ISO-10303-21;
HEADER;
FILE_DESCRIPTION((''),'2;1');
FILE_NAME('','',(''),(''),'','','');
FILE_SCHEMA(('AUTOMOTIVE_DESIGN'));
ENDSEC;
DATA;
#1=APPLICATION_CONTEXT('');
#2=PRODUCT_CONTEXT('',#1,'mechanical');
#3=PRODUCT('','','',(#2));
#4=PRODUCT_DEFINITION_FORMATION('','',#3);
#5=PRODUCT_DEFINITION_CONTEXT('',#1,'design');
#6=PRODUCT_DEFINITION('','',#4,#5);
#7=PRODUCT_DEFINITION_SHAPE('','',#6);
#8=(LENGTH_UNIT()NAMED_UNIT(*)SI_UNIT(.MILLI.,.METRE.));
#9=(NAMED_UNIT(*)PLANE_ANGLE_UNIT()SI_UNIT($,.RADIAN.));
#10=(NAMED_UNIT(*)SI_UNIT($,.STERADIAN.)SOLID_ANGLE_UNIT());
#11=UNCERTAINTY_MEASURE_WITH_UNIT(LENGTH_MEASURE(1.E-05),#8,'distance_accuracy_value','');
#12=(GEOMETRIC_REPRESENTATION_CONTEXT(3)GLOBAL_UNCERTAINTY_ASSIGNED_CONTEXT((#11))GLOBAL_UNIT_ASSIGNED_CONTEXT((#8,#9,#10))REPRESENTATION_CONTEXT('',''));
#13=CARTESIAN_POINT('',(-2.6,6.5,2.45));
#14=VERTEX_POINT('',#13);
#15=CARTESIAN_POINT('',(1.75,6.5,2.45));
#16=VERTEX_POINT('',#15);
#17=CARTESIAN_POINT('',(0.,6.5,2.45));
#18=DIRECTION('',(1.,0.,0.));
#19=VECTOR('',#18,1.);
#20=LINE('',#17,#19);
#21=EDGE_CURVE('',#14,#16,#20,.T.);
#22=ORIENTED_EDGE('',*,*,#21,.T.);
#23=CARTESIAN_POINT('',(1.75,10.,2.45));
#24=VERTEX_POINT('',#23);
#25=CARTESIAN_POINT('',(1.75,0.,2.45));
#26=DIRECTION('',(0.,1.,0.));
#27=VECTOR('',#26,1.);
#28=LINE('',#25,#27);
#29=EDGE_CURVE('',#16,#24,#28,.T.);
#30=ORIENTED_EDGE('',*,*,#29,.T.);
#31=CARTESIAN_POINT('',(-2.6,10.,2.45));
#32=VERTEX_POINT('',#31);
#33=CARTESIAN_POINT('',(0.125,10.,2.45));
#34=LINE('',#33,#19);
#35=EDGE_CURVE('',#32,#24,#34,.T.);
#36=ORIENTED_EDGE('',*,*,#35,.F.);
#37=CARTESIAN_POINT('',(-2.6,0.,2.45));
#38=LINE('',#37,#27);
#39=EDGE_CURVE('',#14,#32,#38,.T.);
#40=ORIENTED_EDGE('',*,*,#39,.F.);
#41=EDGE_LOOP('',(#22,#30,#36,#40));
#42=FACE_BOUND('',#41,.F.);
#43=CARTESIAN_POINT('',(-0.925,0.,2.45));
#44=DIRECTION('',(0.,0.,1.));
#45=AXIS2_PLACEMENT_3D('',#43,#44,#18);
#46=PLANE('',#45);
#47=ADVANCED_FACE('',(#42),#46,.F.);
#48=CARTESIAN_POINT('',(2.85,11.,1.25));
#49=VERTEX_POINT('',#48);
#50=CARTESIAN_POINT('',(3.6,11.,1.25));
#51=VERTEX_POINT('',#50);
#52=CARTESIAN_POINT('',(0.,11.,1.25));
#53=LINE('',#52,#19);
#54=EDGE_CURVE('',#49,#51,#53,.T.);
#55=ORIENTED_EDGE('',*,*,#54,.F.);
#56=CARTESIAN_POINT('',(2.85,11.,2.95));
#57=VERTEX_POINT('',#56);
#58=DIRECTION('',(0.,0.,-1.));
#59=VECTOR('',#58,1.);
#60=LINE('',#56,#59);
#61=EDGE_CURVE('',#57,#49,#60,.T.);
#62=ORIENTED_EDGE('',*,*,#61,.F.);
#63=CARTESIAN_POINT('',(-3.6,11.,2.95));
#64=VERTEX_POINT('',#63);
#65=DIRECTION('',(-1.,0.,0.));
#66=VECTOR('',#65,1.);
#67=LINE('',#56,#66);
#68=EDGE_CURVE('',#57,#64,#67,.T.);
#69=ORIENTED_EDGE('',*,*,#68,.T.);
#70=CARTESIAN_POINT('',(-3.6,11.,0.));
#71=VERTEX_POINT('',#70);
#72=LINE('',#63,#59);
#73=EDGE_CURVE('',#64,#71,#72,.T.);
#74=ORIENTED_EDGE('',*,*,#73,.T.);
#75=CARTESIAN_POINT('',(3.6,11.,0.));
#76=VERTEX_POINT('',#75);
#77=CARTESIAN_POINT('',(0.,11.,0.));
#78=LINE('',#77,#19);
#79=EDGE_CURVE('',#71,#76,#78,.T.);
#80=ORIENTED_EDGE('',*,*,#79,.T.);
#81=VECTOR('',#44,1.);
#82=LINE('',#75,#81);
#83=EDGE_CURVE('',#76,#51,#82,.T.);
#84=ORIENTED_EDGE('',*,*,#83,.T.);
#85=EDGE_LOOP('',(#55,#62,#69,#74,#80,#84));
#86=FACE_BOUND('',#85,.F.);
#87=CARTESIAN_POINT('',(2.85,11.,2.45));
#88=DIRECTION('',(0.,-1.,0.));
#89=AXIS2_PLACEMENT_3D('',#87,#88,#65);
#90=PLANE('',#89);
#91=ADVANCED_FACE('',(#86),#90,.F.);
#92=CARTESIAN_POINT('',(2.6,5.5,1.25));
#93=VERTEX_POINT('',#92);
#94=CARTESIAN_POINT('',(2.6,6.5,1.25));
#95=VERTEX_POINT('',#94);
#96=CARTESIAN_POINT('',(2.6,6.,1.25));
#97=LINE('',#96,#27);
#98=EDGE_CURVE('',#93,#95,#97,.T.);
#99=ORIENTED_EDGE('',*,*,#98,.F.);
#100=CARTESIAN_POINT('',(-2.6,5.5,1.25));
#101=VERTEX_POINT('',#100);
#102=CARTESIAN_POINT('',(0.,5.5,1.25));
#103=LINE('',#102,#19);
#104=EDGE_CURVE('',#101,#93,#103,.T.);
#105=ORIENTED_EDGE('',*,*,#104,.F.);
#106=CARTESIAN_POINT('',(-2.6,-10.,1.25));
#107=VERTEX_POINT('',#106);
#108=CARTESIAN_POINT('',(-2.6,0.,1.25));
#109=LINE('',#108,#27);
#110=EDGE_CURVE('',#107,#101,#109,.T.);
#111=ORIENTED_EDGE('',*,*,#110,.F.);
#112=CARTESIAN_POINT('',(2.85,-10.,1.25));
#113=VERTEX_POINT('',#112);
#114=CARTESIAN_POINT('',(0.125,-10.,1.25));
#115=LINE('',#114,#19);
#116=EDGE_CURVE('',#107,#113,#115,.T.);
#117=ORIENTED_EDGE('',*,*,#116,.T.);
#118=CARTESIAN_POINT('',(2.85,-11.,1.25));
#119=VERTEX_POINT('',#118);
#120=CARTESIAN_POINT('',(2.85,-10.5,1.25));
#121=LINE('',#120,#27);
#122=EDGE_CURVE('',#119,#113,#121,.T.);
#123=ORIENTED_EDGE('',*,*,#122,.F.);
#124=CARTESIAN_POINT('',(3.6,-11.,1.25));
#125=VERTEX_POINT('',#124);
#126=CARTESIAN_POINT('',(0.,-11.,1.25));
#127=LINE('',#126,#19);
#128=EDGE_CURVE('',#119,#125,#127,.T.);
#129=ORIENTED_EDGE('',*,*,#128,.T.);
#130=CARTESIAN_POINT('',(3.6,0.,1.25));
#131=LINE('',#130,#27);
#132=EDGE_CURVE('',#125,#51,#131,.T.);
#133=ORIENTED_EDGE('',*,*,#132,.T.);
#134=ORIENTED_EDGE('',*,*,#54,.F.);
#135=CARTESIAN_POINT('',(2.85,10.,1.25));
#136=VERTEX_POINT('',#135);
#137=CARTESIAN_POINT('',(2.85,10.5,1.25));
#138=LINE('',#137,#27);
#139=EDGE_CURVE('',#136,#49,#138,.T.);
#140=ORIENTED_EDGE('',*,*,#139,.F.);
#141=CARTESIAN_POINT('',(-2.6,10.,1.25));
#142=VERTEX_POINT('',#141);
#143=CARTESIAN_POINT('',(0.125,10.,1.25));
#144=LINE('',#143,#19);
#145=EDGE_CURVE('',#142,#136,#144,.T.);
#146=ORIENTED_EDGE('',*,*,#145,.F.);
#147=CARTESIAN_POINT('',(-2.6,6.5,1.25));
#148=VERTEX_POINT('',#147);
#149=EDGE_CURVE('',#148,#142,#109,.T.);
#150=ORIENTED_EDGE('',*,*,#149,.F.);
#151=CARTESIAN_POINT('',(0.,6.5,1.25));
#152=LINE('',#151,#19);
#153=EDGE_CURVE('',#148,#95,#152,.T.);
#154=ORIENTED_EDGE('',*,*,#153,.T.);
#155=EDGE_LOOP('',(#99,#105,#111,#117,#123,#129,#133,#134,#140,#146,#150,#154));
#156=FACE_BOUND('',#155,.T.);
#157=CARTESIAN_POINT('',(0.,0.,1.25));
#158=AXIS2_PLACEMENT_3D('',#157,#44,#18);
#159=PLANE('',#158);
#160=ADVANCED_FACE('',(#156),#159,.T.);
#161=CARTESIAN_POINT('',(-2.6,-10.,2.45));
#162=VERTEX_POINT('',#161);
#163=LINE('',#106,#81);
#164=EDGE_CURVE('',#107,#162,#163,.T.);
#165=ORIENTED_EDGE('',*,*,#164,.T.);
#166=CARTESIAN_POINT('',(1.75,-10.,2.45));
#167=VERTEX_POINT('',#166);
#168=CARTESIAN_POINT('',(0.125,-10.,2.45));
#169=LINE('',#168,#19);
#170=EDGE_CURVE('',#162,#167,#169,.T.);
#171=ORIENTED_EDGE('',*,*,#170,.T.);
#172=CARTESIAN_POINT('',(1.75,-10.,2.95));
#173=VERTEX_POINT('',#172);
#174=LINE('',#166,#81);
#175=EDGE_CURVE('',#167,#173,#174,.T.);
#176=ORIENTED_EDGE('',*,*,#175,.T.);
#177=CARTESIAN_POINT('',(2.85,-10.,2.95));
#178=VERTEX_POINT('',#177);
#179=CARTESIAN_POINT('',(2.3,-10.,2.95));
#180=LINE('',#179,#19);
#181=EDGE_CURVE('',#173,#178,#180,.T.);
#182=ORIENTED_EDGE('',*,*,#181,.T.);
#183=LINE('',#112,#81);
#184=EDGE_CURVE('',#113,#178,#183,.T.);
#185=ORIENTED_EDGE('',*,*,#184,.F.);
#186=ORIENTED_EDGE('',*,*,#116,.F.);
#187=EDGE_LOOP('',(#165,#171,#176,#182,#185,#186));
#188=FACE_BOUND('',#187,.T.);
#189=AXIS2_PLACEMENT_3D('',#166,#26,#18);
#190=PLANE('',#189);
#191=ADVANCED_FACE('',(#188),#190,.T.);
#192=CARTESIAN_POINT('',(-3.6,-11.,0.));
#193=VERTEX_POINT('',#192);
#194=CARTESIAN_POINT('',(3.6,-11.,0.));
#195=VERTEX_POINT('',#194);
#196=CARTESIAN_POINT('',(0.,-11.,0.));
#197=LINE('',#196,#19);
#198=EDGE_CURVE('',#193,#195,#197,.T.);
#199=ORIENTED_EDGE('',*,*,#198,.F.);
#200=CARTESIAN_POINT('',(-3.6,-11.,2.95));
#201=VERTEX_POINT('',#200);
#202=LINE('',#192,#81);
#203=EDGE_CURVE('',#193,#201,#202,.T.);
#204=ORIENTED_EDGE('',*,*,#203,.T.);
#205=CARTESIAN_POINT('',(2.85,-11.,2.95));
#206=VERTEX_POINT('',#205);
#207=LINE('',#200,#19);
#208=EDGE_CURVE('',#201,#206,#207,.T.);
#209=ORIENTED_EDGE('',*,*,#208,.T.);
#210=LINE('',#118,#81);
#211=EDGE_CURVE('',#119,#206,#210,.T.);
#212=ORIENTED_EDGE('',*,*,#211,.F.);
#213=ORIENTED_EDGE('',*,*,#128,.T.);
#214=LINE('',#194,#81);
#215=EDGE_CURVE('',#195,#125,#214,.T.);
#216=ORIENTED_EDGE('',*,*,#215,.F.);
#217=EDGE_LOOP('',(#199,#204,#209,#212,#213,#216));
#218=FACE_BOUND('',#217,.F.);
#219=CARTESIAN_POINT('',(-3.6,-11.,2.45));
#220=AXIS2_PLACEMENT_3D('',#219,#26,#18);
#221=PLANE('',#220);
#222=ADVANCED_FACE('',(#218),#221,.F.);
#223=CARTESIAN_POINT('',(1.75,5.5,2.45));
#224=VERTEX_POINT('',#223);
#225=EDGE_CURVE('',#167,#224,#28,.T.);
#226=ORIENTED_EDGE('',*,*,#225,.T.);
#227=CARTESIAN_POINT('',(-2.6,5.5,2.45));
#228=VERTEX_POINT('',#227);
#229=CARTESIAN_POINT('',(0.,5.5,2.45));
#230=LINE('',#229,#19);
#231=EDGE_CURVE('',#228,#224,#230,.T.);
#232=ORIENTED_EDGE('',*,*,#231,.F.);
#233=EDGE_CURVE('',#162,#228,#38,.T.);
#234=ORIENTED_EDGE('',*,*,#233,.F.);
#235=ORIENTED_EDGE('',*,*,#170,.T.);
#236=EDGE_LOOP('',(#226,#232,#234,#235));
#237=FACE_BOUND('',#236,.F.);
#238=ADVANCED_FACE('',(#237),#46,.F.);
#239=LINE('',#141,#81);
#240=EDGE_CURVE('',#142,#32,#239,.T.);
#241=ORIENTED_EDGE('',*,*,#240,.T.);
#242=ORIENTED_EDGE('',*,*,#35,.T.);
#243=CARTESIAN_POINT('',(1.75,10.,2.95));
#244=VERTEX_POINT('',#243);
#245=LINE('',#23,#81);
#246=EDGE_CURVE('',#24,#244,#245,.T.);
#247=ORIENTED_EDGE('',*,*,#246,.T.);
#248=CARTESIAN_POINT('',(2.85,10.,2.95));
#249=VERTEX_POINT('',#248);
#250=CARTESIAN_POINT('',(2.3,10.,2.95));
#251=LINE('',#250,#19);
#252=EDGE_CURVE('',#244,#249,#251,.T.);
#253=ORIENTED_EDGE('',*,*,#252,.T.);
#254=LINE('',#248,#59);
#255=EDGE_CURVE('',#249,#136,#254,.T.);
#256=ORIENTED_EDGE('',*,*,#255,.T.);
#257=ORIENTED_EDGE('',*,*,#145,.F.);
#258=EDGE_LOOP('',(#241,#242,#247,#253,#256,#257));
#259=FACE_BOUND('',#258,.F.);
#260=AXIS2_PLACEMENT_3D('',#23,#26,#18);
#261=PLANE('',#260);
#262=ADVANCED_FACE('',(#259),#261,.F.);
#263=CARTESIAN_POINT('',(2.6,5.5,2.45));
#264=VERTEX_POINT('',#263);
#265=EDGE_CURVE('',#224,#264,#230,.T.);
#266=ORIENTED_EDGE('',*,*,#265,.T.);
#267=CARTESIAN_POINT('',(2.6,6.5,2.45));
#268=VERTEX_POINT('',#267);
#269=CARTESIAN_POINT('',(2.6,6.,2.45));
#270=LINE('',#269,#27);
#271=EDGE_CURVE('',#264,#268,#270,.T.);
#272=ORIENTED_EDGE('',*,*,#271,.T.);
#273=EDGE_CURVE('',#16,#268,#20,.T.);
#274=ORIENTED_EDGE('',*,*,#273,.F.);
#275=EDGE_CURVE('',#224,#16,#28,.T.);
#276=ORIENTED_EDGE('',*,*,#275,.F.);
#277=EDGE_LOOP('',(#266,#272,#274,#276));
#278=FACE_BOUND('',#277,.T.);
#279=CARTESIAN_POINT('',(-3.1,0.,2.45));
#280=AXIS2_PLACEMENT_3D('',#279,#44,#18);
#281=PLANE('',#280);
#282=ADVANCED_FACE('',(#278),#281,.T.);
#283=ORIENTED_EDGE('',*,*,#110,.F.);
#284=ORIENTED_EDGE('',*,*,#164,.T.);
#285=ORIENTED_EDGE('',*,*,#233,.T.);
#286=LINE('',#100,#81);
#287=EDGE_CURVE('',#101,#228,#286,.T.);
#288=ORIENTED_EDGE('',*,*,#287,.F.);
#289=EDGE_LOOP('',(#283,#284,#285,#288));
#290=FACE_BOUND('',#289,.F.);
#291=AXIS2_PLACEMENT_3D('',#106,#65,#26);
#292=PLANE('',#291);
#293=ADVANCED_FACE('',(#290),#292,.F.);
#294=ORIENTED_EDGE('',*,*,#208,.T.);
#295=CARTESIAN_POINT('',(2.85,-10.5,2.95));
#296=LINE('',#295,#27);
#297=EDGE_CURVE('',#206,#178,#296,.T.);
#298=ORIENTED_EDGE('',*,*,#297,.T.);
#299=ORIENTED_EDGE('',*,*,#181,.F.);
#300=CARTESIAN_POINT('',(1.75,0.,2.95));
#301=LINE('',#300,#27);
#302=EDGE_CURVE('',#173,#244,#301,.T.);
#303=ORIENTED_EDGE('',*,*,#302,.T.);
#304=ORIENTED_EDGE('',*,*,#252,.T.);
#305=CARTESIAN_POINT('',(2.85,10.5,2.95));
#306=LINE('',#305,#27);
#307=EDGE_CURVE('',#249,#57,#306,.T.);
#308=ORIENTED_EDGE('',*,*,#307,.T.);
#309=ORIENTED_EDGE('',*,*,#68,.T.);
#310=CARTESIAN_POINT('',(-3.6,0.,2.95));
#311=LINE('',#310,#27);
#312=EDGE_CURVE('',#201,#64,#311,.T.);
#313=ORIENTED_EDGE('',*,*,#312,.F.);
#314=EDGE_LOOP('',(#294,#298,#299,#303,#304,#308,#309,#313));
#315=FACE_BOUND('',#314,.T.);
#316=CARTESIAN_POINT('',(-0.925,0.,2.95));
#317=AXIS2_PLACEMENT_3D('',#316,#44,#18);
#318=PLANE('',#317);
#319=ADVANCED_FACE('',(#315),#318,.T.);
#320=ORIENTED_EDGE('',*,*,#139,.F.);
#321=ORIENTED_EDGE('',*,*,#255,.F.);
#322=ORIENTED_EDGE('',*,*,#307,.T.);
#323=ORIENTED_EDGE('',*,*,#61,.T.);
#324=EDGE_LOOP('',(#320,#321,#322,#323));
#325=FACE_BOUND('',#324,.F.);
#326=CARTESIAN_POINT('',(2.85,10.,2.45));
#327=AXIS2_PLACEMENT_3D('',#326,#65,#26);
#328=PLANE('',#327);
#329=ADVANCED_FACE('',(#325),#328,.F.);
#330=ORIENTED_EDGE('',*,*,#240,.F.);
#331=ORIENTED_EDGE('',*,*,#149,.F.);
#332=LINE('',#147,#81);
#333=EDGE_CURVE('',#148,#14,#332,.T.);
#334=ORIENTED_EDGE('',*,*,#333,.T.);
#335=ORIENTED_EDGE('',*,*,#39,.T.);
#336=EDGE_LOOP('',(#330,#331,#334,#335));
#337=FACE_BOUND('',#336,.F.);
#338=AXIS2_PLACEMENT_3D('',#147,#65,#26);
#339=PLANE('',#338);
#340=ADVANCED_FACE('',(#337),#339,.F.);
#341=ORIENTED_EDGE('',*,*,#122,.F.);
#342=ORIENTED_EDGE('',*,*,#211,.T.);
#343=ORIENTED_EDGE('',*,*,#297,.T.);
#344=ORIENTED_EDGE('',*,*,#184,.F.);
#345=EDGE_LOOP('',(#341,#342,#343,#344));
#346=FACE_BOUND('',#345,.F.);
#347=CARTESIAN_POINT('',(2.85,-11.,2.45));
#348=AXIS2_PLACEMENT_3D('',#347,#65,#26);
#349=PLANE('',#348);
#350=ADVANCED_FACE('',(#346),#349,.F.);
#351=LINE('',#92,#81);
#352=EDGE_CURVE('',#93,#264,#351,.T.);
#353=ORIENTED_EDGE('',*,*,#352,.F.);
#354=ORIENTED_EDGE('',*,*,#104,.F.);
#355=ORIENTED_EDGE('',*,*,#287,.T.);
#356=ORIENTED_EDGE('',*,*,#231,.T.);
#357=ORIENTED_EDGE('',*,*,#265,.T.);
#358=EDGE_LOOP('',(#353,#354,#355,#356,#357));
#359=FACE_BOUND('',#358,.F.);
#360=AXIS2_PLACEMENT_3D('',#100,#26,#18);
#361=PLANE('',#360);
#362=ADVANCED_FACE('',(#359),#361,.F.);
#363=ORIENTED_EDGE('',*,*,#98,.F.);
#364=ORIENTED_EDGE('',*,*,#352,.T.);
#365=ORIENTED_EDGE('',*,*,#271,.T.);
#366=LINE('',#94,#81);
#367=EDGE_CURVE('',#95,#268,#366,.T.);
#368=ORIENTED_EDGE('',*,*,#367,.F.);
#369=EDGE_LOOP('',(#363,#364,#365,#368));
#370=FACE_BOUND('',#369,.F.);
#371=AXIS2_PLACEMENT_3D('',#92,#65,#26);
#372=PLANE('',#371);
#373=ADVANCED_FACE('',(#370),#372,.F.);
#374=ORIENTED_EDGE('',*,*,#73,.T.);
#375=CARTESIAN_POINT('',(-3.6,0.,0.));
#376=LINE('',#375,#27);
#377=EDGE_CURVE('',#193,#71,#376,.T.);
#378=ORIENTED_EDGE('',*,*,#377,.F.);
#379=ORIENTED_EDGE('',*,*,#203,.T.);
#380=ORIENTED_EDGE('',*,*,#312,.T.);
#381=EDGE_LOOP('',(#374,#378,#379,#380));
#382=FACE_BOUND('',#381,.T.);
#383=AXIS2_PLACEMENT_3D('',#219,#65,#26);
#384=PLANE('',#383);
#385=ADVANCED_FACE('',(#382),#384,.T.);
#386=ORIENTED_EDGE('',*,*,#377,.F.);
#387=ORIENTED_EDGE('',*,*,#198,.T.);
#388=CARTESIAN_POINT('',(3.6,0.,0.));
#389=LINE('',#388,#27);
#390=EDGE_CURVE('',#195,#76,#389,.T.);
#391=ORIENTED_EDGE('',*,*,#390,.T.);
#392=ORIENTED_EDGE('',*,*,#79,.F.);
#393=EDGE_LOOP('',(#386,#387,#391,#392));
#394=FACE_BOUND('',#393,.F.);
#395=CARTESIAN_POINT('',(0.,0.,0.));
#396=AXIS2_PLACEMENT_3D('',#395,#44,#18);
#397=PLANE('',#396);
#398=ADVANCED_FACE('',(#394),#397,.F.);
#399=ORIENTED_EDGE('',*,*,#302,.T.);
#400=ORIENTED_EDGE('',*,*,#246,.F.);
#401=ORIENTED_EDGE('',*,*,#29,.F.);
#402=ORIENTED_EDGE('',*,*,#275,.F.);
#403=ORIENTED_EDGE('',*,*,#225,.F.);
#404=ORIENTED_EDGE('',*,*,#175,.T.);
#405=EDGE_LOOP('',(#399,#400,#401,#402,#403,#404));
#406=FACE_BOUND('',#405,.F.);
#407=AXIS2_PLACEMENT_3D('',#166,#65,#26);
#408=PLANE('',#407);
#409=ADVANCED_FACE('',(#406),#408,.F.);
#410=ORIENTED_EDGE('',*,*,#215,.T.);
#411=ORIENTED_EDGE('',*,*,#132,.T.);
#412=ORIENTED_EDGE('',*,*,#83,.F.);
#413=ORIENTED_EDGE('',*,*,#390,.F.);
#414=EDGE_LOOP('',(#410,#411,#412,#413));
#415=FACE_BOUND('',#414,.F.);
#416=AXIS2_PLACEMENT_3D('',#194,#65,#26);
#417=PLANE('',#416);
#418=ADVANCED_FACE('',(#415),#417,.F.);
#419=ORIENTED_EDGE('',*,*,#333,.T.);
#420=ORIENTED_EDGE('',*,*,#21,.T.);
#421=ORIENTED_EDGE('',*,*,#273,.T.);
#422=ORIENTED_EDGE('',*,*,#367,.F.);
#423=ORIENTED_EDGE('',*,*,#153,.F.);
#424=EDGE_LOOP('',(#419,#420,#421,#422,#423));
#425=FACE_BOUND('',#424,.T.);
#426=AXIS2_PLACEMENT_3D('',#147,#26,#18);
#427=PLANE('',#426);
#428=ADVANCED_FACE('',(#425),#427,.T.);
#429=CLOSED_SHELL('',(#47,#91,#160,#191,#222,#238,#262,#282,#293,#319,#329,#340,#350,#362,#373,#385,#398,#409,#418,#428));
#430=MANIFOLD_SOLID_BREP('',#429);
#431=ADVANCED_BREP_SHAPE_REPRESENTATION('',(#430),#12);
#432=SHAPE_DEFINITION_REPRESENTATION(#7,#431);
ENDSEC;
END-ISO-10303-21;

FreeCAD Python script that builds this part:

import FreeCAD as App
import Part
import Sketcher

V = App.Vector


def add_polygon(sketch, points):
    """Adds a closed chain of lines whose ends are joined by coincident constraints."""
    first, n = sketch.GeometryCount, len(points)
    for a, b in zip(points, points[1:] + points[:1]):
        sketch.addGeometry(Part.LineSegment(App.Vector(*a, 0), App.Vector(*b, 0)), False)
    for i in range(n):
        sketch.addConstraint(Sketcher.Constraint("Coincident", first + i, 2, first + (i + 1) % n, 1))

doc = App.newDocument("Part")
body = doc.addObject("PartDesign::Body", "Body")

# Sketch on XY plane
sketch1 = body.newObject("Sketcher::SketchObject", "Sketch")
sketch1.AttachmentSupport = (doc.getObject("XY_Plane"), [""])
sketch1.MapMode = "FlatFace"
add_polygon(sketch1, [(-4, 11), (-4, -11), (4, -11), (4, 11)])  # lines 0-3
sketch1.addConstraint(Sketcher.Constraint("Vertical", 0))
sketch1.addConstraint(Sketcher.Constraint("Horizontal", 1))
sketch1.addConstraint(Sketcher.Constraint("Vertical", 2))
sketch1.addConstraint(Sketcher.Constraint("Horizontal", 3))
sketch1.addConstraint(Sketcher.Constraint("Symmetric", 0, 2, 2, 2, -1, 1))
sketch1.addConstraint(Sketcher.Constraint("DistanceY", 0, 2, 0, 1, 22.0))
sketch1.addConstraint(Sketcher.Constraint("DistanceX", 1, 1, 1, 2, 7.2))
pad1 = body.newObject("PartDesign::Pad", "Pad")
pad1.Profile = sketch1
pad1.Length = 1.25

# Sketch on XY plane
sketch2 = body.newObject("Sketcher::SketchObject", "Sketch001")
sketch2.AttachmentSupport = (doc.getObject("XY_Plane"), [""])
sketch2.MapMode = "FlatFace"
sketch2.AttachmentOffset = App.Placement(V(0, 0, 1.25), App.Rotation())
add_polygon(sketch2, [(-3.6, 11), (-3.6, -11), (2.9, -11), (2.9, -10), (-2.6, -10), (-2.6, 5.5), (2.6, 5.5), (2.6, 6.5), (-2.6, 6.5), (-2.6, 10), (2.9, 10), (2.9, 11)])  # lines 0-11
sketch2.addConstraint(Sketcher.Constraint("Vertical", 0))
sketch2.addConstraint(Sketcher.Constraint("Horizontal", 1))
sketch2.addConstraint(Sketcher.Constraint("Vertical", 2))
sketch2.addConstraint(Sketcher.Constraint("Horizontal", 3))
sketch2.addConstraint(Sketcher.Constraint("Vertical", 4))
sketch2.addConstraint(Sketcher.Constraint("Horizontal", 5))
sketch2.addConstraint(Sketcher.Constraint("Vertical", 6))
sketch2.addConstraint(Sketcher.Constraint("Horizontal", 7))
sketch2.addConstraint(Sketcher.Constraint("Vertical", 8))
sketch2.addConstraint(Sketcher.Constraint("Horizontal", 9))
sketch2.addConstraint(Sketcher.Constraint("Vertical", 10))
sketch2.addConstraint(Sketcher.Constraint("Horizontal", 11))
sketch2.addConstraint(Sketcher.Constraint("Symmetric", 3, 2, 8, 2, -1))
sketch2.addConstraint(Sketcher.Constraint("Symmetric", 1, 2, 10, 2, -1))
sketch2.addConstraint(Sketcher.Constraint("Equal", 2, 6))
sketch2.addConstraint(Sketcher.Constraint("DistanceY", 0, 2, 0, 1, 22.0))
sketch2.addConstraint(Sketcher.Constraint("DistanceY", 2, 1, 2, 2, 1.0))
sketch2.addConstraint(Sketcher.Constraint("DistanceX", 5, 1, 5, 2, 5.2))
sketch2.addConstraint(Sketcher.Constraint("DistanceY", 4, 1, 4, 2, 15.5))
sketch2.addConstraint(Sketcher.Constraint("DistanceX", 0, 2, 3, 2, 1.0))
sketch2.addConstraint(Sketcher.Constraint("DistanceX", 1, 1, 1, 2, 6.45))
sketch2.addConstraint(Sketcher.Constraint("DistanceX", 0, 2, -1, 1, 3.6))
pad2 = body.newObject("PartDesign::Pad", "Pad001")
pad2.Profile = sketch2
pad2.Length = 1.2

# Sketch on XY plane
sketch3 = body.newObject("Sketcher::SketchObject", "Sketch002")
sketch3.AttachmentSupport = (doc.getObject("XY_Plane"), [""])
sketch3.MapMode = "FlatFace"
sketch3.AttachmentOffset = App.Placement(V(0, 0, 2.45), App.Rotation())
add_polygon(sketch3, [(-3.6, 11), (-3.6, -11), (2.9, -11), (2.9, -10), (1.8, -10), (1.8, 10), (2.9, 10), (2.9, 11)])  # lines 0-7
sketch3.addConstraint(Sketcher.Constraint("Vertical", 0))
sketch3.addConstraint(Sketcher.Constraint("Horizontal", 1))
sketch3.addConstraint(Sketcher.Constraint("Vertical", 2))
sketch3.addConstraint(Sketcher.Constraint("Horizontal", 3))
sketch3.addConstraint(Sketcher.Constraint("Vertical", 4))
sketch3.addConstraint(Sketcher.Constraint("Horizontal", 5))
sketch3.addConstraint(Sketcher.Constraint("Vertical", 6))
sketch3.addConstraint(Sketcher.Constraint("Horizontal", 7))
sketch3.addConstraint(Sketcher.Constraint("Symmetric", 2, 2, 5, 2, -1))
sketch3.addConstraint(Sketcher.Constraint("Equal", 2, 6))
sketch3.addConstraint(Sketcher.Constraint("DistanceY", 0, 2, 0, 1, 22.0))
sketch3.addConstraint(Sketcher.Constraint("DistanceY", 2, 1, 2, 2, 1.0))
sketch3.addConstraint(Sketcher.Constraint("DistanceX", 3, 2, 3, 1, 1.1))
sketch3.addConstraint(Sketcher.Constraint("DistanceX", 1, 1, 1, 2, 6.45))
sketch3.addConstraint(Sketcher.Constraint("DistanceX", 0, 2, -1, 1, 3.6))
pad3 = body.newObject("PartDesign::Pad", "Pad002")
pad3.Profile = sketch3
pad3.Length = 0.5

doc.recompute()
